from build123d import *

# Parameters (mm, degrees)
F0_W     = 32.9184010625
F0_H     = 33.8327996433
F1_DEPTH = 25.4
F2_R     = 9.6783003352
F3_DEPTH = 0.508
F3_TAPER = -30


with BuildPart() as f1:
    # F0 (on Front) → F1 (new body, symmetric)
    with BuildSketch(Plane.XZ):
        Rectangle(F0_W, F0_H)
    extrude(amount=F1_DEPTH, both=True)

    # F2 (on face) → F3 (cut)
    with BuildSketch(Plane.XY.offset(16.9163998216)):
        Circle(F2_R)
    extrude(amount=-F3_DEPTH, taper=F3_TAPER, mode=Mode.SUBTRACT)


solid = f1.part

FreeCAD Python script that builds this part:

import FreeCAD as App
import Part
import Sketcher
Q = App.Units.Quantity


def add_polygon(sketch, points):
    """Adds a closed chain of lines whose ends are joined by coincident constraints."""
    first, n = sketch.GeometryCount, len(points)
    for a, b in zip(points, points[1:] + points[:1]):
        sketch.addGeometry(Part.LineSegment(App.Vector(*a, 0), App.Vector(*b, 0)), False)
    for i in range(n):
        sketch.addConstraint(Sketcher.Constraint("Coincident", first + i, 2, first + (i + 1) % n, 1))

doc = App.newDocument("Part")
body = doc.addObject("PartDesign::Body", "Body")

sketch1 = doc.addObject("Sketcher::SketchObject", "Sketch")
body.addObject(sketch1)
sketch1.AttachmentSupport = (doc.XZ_Plane, [""])
sketch1.MapMode = "FlatFace"
add_polygon(sketch1, [(-16, 17), (-16, -17), (16, -17), (16, 17)])
sketch1.addConstraint([
    Sketcher.Constraint("Vertical", 0),
    Sketcher.Constraint("Horizontal", 1),
    Sketcher.Constraint("Vertical", 2),
    Sketcher.Constraint("Horizontal", 3),
    Sketcher.Constraint("Symmetric", 0, 2, 2, 2, -1, 1),
    Sketcher.Constraint("DistanceX", 1, 1, 1, 2, Q("1.296 in")),
    Sketcher.Constraint("DistanceY", 0, 2, 0, 1, Q("1.332 in")),
])
pad1 = doc.addObject("PartDesign::Pad", "Pad")
body.addObject(pad1)
pad1.Profile = sketch1
pad1.Length = Q("2 in")
pad1.Midplane = True

sketch2 = doc.addObject("Sketcher::SketchObject", "Sketch001")
body.addObject(sketch2)
sketch2.AttachmentSupport = (doc.XY_Plane, [""])
sketch2.MapMode = "FlatFace"
sketch2.AttachmentOffset = App.Placement(App.Vector(0, 0, 0.666 * 25.4), App.Rotation())
sketch2.addGeometry(Part.Circle(App.Vector(0, 0, 0), App.Vector(0, 0, 1), 10), False)
sketch2.addConstraint([
    Sketcher.Constraint("Coincident", 0, 3, -1, 1),
    Sketcher.Constraint("Diameter", 0, Q("19.356601 mm")),
])
pocket1 = doc.addObject("PartDesign::Pocket", "Pocket")
body.addObject(pocket1)
pocket1.Profile = sketch2
pocket1.Length = Q("0.02 in")
pocket1.TaperAngle = 30

doc.recompute()
